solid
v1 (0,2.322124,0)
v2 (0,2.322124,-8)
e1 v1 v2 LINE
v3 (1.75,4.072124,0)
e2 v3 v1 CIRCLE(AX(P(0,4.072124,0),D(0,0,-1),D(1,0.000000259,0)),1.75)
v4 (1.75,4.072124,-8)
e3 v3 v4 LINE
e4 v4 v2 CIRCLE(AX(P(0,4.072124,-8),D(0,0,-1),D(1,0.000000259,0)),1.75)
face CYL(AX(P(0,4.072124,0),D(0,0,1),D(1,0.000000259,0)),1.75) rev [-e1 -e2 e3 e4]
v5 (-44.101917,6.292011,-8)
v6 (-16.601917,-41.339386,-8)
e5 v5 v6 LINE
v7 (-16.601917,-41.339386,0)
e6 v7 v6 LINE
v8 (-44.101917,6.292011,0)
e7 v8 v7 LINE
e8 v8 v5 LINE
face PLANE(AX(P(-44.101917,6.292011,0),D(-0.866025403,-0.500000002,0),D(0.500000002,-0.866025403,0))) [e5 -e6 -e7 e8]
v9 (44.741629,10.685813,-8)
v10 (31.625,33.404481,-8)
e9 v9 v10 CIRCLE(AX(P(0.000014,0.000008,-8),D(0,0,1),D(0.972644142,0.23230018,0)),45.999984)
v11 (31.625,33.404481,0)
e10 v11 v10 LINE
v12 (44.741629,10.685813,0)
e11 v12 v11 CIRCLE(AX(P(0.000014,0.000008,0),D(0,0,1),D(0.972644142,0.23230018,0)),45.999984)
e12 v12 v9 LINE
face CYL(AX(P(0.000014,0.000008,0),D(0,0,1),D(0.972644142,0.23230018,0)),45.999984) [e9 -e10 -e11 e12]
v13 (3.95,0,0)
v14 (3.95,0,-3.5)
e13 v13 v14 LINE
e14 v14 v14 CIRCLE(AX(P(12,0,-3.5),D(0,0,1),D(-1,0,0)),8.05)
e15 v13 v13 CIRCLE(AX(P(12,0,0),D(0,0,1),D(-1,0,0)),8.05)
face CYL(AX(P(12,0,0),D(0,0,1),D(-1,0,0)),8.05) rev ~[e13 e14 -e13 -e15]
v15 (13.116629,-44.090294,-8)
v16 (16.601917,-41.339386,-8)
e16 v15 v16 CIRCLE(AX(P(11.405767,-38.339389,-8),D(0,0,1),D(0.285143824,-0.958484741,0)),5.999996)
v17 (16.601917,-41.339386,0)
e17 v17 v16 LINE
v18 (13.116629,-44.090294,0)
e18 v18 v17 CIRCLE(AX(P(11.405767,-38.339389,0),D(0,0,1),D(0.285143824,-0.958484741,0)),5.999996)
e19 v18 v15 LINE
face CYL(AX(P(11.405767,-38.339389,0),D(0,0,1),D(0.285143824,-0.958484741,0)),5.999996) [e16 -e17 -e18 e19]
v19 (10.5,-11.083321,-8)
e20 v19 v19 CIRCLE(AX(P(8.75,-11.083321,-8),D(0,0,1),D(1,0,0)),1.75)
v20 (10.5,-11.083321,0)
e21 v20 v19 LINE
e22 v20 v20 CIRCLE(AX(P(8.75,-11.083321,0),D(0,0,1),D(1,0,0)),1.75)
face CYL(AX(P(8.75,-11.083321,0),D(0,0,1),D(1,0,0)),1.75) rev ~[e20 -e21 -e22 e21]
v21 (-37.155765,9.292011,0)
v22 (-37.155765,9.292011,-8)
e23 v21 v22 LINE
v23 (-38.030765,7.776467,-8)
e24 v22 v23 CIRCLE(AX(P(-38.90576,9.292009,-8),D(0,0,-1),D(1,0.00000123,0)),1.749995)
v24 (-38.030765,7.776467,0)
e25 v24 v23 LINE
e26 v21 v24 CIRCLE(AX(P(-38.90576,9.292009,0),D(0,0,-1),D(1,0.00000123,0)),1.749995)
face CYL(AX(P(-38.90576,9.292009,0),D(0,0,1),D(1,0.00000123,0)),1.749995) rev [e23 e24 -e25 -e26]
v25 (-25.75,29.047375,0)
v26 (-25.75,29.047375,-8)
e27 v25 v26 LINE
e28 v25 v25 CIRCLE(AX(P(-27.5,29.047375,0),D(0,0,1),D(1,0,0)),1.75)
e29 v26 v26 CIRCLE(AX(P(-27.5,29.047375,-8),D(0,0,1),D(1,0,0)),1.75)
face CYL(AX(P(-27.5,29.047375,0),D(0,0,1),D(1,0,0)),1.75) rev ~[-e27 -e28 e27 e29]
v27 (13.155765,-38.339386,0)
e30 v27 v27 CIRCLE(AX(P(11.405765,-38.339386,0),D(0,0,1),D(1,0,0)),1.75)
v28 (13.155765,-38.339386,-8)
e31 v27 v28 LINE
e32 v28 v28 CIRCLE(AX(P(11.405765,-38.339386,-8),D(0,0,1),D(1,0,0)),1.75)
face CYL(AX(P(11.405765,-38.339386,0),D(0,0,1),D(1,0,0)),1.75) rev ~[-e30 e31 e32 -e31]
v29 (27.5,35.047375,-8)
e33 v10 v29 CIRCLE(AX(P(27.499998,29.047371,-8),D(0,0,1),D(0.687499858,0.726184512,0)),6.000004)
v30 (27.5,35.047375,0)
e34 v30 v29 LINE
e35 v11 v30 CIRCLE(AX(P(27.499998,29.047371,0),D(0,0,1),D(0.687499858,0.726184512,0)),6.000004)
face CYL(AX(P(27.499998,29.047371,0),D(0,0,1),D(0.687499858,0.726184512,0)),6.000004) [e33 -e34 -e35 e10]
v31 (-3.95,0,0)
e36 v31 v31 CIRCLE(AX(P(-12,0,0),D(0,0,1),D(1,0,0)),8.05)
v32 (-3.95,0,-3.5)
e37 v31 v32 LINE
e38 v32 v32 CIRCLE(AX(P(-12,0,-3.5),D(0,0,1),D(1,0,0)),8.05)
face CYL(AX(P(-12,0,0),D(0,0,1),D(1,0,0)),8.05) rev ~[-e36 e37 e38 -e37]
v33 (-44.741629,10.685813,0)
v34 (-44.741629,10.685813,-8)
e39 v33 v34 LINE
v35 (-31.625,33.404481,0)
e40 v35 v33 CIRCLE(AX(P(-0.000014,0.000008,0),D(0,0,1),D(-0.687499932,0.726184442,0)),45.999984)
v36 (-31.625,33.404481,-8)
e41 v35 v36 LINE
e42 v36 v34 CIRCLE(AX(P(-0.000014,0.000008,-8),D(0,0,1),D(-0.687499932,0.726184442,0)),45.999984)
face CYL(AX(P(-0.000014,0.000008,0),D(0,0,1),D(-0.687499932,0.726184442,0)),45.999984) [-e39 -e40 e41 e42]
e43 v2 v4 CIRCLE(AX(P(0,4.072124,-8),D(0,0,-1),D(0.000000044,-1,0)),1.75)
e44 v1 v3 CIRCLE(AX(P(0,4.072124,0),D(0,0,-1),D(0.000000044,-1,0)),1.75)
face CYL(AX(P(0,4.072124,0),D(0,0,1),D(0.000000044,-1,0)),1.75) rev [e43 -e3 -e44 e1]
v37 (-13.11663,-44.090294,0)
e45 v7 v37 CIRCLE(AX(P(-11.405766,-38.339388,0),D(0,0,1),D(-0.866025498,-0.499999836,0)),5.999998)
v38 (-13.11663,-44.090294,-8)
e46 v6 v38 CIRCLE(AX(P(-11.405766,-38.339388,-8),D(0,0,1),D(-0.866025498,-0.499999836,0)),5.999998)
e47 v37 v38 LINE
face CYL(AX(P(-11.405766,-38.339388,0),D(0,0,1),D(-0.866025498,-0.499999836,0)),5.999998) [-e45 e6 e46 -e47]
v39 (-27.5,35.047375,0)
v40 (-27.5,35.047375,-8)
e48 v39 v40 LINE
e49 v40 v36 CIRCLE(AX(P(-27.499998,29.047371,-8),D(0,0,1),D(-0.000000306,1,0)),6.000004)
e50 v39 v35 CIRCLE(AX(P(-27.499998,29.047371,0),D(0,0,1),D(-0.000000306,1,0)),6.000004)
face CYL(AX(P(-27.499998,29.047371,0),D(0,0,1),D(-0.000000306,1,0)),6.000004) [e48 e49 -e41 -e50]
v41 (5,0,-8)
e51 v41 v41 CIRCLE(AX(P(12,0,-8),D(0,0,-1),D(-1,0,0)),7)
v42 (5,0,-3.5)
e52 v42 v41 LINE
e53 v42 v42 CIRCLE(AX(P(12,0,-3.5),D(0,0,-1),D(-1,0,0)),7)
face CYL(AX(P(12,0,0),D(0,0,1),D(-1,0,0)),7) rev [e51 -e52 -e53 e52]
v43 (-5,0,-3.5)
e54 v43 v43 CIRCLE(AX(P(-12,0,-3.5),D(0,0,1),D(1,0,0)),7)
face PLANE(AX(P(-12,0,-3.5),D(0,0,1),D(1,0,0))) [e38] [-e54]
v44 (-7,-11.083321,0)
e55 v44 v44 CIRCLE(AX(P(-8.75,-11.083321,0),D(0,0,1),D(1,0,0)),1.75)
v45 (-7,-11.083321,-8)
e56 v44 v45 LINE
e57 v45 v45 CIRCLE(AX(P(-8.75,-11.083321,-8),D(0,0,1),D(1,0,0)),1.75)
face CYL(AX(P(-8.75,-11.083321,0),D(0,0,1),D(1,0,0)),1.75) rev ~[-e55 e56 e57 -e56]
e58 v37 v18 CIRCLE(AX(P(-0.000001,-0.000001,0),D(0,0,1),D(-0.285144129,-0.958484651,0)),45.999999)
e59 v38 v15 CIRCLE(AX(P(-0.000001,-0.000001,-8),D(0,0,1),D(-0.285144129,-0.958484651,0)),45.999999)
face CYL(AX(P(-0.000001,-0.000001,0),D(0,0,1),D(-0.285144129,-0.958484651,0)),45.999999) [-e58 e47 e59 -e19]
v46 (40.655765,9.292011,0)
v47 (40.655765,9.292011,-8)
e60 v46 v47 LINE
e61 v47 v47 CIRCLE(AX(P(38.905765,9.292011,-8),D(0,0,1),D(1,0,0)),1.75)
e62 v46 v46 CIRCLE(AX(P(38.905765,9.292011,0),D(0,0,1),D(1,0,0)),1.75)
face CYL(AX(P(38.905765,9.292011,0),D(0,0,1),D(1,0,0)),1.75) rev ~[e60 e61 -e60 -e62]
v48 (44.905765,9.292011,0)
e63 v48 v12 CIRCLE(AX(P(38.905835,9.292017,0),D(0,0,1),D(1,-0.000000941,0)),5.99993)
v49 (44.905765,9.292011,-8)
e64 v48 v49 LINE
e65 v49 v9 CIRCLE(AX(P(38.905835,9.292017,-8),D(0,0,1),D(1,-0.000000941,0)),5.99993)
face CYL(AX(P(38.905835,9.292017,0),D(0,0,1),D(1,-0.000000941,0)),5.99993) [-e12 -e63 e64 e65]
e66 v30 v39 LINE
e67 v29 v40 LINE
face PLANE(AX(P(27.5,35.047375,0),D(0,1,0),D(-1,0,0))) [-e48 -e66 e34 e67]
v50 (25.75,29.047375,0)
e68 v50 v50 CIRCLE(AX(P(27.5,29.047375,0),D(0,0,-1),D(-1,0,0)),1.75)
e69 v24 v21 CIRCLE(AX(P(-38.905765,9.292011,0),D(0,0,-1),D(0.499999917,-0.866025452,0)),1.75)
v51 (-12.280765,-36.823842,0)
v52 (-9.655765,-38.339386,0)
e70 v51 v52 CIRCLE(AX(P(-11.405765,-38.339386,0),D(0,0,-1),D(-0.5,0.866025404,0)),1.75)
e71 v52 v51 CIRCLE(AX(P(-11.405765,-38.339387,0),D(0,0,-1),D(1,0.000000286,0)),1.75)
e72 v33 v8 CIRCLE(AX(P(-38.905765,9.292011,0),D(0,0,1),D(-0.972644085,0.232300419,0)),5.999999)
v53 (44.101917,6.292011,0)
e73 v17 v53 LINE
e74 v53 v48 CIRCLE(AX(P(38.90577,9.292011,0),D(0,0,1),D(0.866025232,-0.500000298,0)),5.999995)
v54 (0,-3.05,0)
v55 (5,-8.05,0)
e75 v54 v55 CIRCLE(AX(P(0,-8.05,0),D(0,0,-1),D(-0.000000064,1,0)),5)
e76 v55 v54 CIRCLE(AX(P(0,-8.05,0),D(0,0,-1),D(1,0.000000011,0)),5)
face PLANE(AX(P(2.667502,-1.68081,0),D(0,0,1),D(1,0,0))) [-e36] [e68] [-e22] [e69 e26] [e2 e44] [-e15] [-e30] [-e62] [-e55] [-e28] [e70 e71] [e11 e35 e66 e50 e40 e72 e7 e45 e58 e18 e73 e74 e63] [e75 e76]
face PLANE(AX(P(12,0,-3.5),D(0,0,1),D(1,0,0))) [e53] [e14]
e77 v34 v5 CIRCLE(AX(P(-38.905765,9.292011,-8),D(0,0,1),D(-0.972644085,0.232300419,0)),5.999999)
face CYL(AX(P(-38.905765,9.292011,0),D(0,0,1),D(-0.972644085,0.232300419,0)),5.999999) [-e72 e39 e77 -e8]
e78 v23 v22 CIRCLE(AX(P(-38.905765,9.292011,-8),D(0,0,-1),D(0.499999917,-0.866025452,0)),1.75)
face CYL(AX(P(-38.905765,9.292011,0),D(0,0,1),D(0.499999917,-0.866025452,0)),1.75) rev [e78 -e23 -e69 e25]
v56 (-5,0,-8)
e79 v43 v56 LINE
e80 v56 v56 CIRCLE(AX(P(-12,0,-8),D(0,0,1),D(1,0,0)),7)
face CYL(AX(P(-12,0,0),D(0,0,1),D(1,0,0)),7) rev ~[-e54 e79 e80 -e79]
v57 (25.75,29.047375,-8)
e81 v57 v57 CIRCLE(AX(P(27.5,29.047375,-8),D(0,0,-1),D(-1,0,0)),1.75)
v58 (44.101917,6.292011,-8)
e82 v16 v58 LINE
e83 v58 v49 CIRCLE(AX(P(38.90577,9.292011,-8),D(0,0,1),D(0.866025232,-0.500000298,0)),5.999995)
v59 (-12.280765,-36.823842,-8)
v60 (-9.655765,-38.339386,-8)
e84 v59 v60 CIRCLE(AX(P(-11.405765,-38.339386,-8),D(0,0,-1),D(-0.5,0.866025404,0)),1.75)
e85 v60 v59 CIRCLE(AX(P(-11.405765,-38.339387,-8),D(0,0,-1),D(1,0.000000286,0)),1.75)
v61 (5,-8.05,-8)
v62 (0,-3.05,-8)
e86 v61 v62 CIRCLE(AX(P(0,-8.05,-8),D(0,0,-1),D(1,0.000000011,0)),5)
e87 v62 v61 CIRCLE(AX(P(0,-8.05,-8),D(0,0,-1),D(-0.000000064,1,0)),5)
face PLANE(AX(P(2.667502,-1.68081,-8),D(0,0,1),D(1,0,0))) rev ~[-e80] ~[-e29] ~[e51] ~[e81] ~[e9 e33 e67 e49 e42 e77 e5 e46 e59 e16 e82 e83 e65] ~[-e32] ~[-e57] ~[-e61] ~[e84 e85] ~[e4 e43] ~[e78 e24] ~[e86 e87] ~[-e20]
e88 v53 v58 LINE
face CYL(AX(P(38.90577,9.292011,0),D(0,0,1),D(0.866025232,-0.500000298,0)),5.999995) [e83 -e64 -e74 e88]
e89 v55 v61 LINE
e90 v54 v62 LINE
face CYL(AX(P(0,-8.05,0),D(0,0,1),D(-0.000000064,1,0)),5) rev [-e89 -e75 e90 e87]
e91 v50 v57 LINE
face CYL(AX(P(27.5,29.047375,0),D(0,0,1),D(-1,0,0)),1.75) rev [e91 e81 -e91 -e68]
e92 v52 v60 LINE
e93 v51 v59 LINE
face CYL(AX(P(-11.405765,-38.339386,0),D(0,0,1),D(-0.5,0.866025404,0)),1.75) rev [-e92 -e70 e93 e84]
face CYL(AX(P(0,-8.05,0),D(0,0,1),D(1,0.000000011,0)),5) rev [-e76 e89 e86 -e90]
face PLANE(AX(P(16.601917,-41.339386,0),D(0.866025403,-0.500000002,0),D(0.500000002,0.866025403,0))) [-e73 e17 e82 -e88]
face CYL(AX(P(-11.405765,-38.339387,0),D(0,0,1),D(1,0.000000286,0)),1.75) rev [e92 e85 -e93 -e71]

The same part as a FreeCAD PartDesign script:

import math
import FreeCAD as App
import Part
import Sketcher

doc = App.newDocument("Part")
body = doc.addObject("PartDesign::Body", "Body")

sketch1 = body.newObject("Sketcher::SketchObject", "Sketch")
sketch1.AttachmentSupport = (doc.getObject("XY_Plane"), [""])
sketch1.MapMode = "FlatFace"
sketch1.addGeometry(Part.LineSegment(App.Vector(-44.101917, 6.292011, 0), App.Vector(-16.601917, -41.339386, 0)), False)
sketch1.addGeometry(Part.ArcOfCircle(Part.Circle(App.Vector(-11.405766, -38.339388, 0), App.Vector(0, 0, 1), 5.999998), math.radians(-150.000011), math.radians(-106.567466)), False)
sketch1.addGeometry(Part.ArcOfCircle(Part.Circle(App.Vector(0, -0.000001, 0), App.Vector(0, 0, 1), 45.999999), math.radians(-106.567464), math.radians(-73.432536)), False)
sketch1.addGeometry(Part.ArcOfCircle(Part.Circle(App.Vector(11.405767, -38.339389, 0), App.Vector(0, 0, 1), 5.999996), math.radians(-73.432554), math.radians(-29.999985)), False)
sketch1.addGeometry(Part.LineSegment(App.Vector(16.601917, -41.339386, 0), App.Vector(44.101917, 6.292011, 0)), False)
sketch1.addGeometry(Part.ArcOfCircle(Part.Circle(App.Vector(38.90577, 9.292011, 0), App.Vector(0, 0, 1), 5.999995), math.radians(-30.00002), math.radians(0.000005)), False)
sketch1.addGeometry(Part.ArcOfCircle(Part.Circle(App.Vector(38.905835, 9.292017, 0), App.Vector(0, 0, 1), 5.99993), math.radians(-0.000054), math.radians(13.432645)), False)
sketch1.addGeometry(Part.ArcOfCircle(Part.Circle(App.Vector(0.000014, 0.000008, 0), App.Vector(0, 0, 1), 45.999984), math.radians(13.432531), math.radians(46.567469)), False)
sketch1.addGeometry(Part.ArcOfCircle(Part.Circle(App.Vector(27.499998, 29.047371, 0), App.Vector(0, 0, 1), 6.000004), math.radians(46.567475), math.radians(89.999982)), False)
sketch1.addGeometry(Part.LineSegment(App.Vector(27.5, 35.047375, 0), App.Vector(-27.5, 35.047375, 0)), False)
sketch1.addGeometry(Part.ArcOfCircle(Part.Circle(App.Vector(-27.499998, 29.047371, 0), App.Vector(0, 0, 1), 6.000004), math.radians(90.000018), math.radians(133.432525)), False)
sketch1.addGeometry(Part.ArcOfCircle(Part.Circle(App.Vector(-0.000014, 0.000008, 0), App.Vector(0, 0, 1), 45.999984), math.radians(133.432531), math.radians(166.567469)), False)
sketch1.addGeometry(Part.ArcOfCircle(Part.Circle(App.Vector(-38.905765, 9.292011, 0), App.Vector(0, 0, 1), 5.999999), math.radians(166.567455), math.radians(210)), False)
sketch1.addGeometry(Part.ArcOfCircle(Part.Circle(App.Vector(-11.405765, -38.339386, 0), App.Vector(0, 0, 1), 1.75), math.radians(0.000015), math.radians(120)), False)
sketch1.addGeometry(Part.ArcOfCircle(Part.Circle(App.Vector(-11.405765, -38.339387, 0), App.Vector(0, 0, 1), 1.75), math.radians(119.999999), math.radians(360.000016)), False)
sketch1.addGeometry(Part.Circle(App.Vector(-8.75, -11.083321, 0), App.Vector(0, 0, 1), 1.75), False)
sketch1.addGeometry(Part.ArcOfCircle(Part.Circle(App.Vector(0, -8.05, 0), App.Vector(0, 0, 1), 5), math.radians(-0.000004), math.radians(90.000004)), False)
sketch1.addGeometry(Part.ArcOfCircle(Part.Circle(App.Vector(0, -8.05, 0), App.Vector(0, 0, 1), 5), math.radians(89.999999), math.radians(360.000001)), False)
sketch1.addGeometry(Part.Circle(App.Vector(11.405765, -38.339386, 0), App.Vector(0, 0, 1), 1.75), False)
sketch1.addGeometry(Part.Circle(App.Vector(8.75, -11.083321, 0), App.Vector(0, 0, 1), 1.75), False)
sketch1.addGeometry(Part.ArcOfCircle(Part.Circle(App.Vector(-38.90576, 9.292009, 0), App.Vector(0, 0, 1), 1.749995), math.radians(-60.000085), math.radians(0.00007)), False)
sketch1.addGeometry(Part.ArcOfCircle(Part.Circle(App.Vector(-38.905765, 9.292011, 0), App.Vector(0, 0, 1), 1.75), math.radians(-0.000009), math.radians(299.999995)), False)
sketch1.addGeometry(Part.Circle(App.Vector(-12, 0, 0), App.Vector(0, 0, 1), 7), False)
sketch1.addGeometry(Part.ArcOfCircle(Part.Circle(App.Vector(0, 4.072124, 0), App.Vector(0, 0, 1), 1.75), math.radians(-0.000003), math.radians(270.000003)), False)
sketch1.addGeometry(Part.ArcOfCircle(Part.Circle(App.Vector(0, 4.072124, 0), App.Vector(0, 0, 1), 1.75), math.radians(-90.000015), math.radians(0.000015)), False)
sketch1.addGeometry(Part.Circle(App.Vector(-27.5, 29.047375, 0), App.Vector(0, 0, 1), 1.75), False)
sketch1.addGeometry(Part.Circle(App.Vector(12, 0, 0), App.Vector(0, 0, 1), 7), False)
sketch1.addGeometry(Part.Circle(App.Vector(38.905765, 9.292011, 0), App.Vector(0, 0, 1), 1.75), False)
sketch1.addGeometry(Part.Circle(App.Vector(27.5, 29.047375, 0), App.Vector(0, 0, 1), 1.75), False)
sketch1.addConstraint(Sketcher.Constraint("Coincident", 0, 2, 1, 1))
sketch1.addConstraint(Sketcher.Constraint("Coincident", 1, 2, 2, 1))
sketch1.addConstraint(Sketcher.Constraint("Coincident", 2, 2, 3, 1))
sketch1.addConstraint(Sketcher.Constraint("Coincident", 3, 2, 4, 1))
sketch1.addConstraint(Sketcher.Constraint("Coincident", 4, 2, 5, 1))
sketch1.addConstraint(Sketcher.Constraint("Coincident", 5, 2, 6, 1))
sketch1.addConstraint(Sketcher.Constraint("Coincident", 6, 2, 7, 1))
sketch1.addConstraint(Sketcher.Constraint("Coincident", 7, 2, 8, 1))
sketch1.addConstraint(Sketcher.Constraint("Coincident", 8, 2, 9, 1))
sketch1.addConstraint(Sketcher.Constraint("Coincident", 9, 2, 10, 1))
sketch1.addConstraint(Sketcher.Constraint("Coincident", 10, 2, 11, 1))
sketch1.addConstraint(Sketcher.Constraint("Coincident", 11, 2, 12, 1))
sketch1.addConstraint(Sketcher.Constraint("Coincident", 12, 2, 0, 1))
sketch1.addConstraint(Sketcher.Constraint("Coincident", 13, 1, 14, 2))
sketch1.addConstraint(Sketcher.Constraint("Coincident", 14, 1, 13, 2))
sketch1.addConstraint(Sketcher.Constraint("Coincident", 16, 1, 17, 2))
sketch1.addConstraint(Sketcher.Constraint("Coincident", 17, 1, 16, 2))
sketch1.addConstraint(Sketcher.Constraint("Coincident", 20, 1, 21, 2))
sketch1.addConstraint(Sketcher.Constraint("Coincident", 21, 1, 20, 2))
sketch1.addConstraint(Sketcher.Constraint("Coincident", 23, 1, 24, 2))
sketch1.addConstraint(Sketcher.Constraint("Coincident", 24, 1, 23, 2))
sketch1.addConstraint(Sketcher.Constraint("Horizontal", 9))
sketch1.addConstraint(Sketcher.Constraint("Coincident", 2, 3, -1, 1))
sketch1.addConstraint(Sketcher.Constraint("Coincident", 13, 3, 1, 3))
sketch1.addConstraint(Sketcher.Constraint("Coincident", 18, 3, 3, 3))
sketch1.addConstraint(Sketcher.Constraint("Coincident", 20, 3, 12, 3))
sketch1.addConstraint(Sketcher.Constraint("Coincident", 25, 3, 10, 3))
sketch1.addConstraint(Sketcher.Constraint("Coincident", 27, 3, 5, 3))
sketch1.addConstraint(Sketcher.Constraint("Coincident", 28, 3, 8, 3))
sketch1.addConstraint(Sketcher.Constraint("PointOnObject", 16, 3, -2))
sketch1.addConstraint(Sketcher.Constraint("PointOnObject", 17, 3, -2))
sketch1.addConstraint(Sketcher.Constraint("PointOnObject", 22, 3, -1))
sketch1.addConstraint(Sketcher.Constraint("PointOnObject", 23, 3, -2))
sketch1.addConstraint(Sketcher.Constraint("PointOnObject", 24, 3, -2))
sketch1.addConstraint(Sketcher.Constraint("PointOnObject", 26, 3, -1))
sketch1.addConstraint(Sketcher.Constraint("PointOnObject", 17, 1, -2))
sketch1.addConstraint(Sketcher.Constraint("PointOnObject", 24, 1, -2))
sketch1.addConstraint(Sketcher.Constraint("Diameter", 22, 14.0))
sketch1.addConstraint(Sketcher.Constraint("Diameter", 26, 14.0))
sketch1.addConstraint(Sketcher.Constraint("Radius", 1, 5.999998))
sketch1.addConstraint(Sketcher.Constraint("Radius", 2, 45.999999))
sketch1.addConstraint(Sketcher.Constraint("Radius", 12, 5.999999))
sketch1.addConstraint(Sketcher.Constraint("Radius", 16, 5.0))
sketch1.addConstraint(Sketcher.Constraint("Diameter", 15, 3.5))
sketch1.addConstraint(Sketcher.Constraint("Diameter", 18, 3.5))
sketch1.addConstraint(Sketcher.Constraint("Diameter", 19, 3.5))
sketch1.addConstraint(Sketcher.Constraint("Diameter", 25, 3.5))
sketch1.addConstraint(Sketcher.Constraint("Diameter", 27, 3.5))
sketch1.addConstraint(Sketcher.Constraint("Diameter", 28, 3.5))
sketch1.addConstraint(Sketcher.Constraint("DistanceX", 9, 2, 9, 1, 55.0))
sketch1.addConstraint(Sketcher.Constraint("Radius", 13, 1.75))
sketch1.addConstraint(Sketcher.Constraint("Radius", 14, 1.75))
sketch1.addConstraint(Sketcher.Constraint("Radius", 21, 1.75))
sketch1.addConstraint(Sketcher.Constraint("Radius", 23, 1.75))
sketch1.addConstraint(Sketcher.Constraint("Distance", 0, 55.0))
sketch1.addConstraint(Sketcher.Constraint("Distance", 4, 55.0))
sketch1.addConstraint(Sketcher.Constraint("DistanceX", 22, 3, -1, 1, 12.0))
sketch1.addConstraint(Sketcher.Constraint("DistanceX", -1, 1, 26, 3, 12.0))
sketch1.addConstraint(Sketcher.Constraint("DistanceY", 0, 2, 1, 3, 2.999998))
sketch1.addConstraint(Sketcher.Constraint("DistanceY", 0, 2, 18, 3, 3.0))
sketch1.addConstraint(Sketcher.Constraint("DistanceY", 3, 2, 18, 3, 3.0))
sketch1.addConstraint(Sketcher.Constraint("DistanceY", 4, 2, 5, 3, 3.0))
sketch1.addConstraint(Sketcher.Constraint("DistanceY", 4, 2, 5, 2, 3.0))
sketch1.addConstraint(Sketcher.Constraint("DistanceX", 27, 3, 5, 2, 6.0))
sketch1.addConstraint(Sketcher.Constraint("DistanceY", 28, 3, 8, 2, 6.0))
sketch1.addConstraint(Sketcher.Constraint("DistanceY", 25, 3, 9, 2, 6.0))
sketch1.addConstraint(Sketcher.Constraint("DistanceY", 12, 2, 12, 3, 3.0))
sketch1.addConstraint(Sketcher.Constraint("DistanceY", 12, 2, 21, 3, 3.0))
sketch1.addConstraint(Sketcher.Constraint("DistanceY", 0, 2, 13, 1, 3.0))
sketch1.addConstraint(Sketcher.Constraint("DistanceY", 12, 2, 21, 1, 3.0))
sketch1.addConstraint(Sketcher.Constraint("DistanceX", -1, 1, 8, 3, 27.499998))
sketch1.addConstraint(Sketcher.Constraint("DistanceX", 10, 3, -1, 1, 27.499998))
sketch1.addConstraint(Sketcher.Constraint("DistanceX", -1, 1, 8, 2, 27.5))
sketch1.addConstraint(Sketcher.Constraint("DistanceX", 12, 3, 1, 3, 27.5))
sketch1.addConstraint(Sketcher.Constraint("DistanceX", 15, 3, -1, 1, 8.75))
sketch1.addConstraint(Sketcher.Constraint("DistanceY", 16, 3, -1, 1, 8.05))
sketch1.addConstraint(Sketcher.Constraint("DistanceX", -1, 1, 19, 3, 8.75))
sketch1.addConstraint(Sketcher.Constraint("DistanceY", 16, 1, -1, 1, 8.05))
sketch1.addConstraint(Sketcher.Constraint("Radius", 6, 5.99993))
sketch1.addConstraint(Sketcher.Constraint("DistanceX", -1, 1, 7, 2, 31.625))
sketch1.addConstraint(Sketcher.Constraint("DistanceX", 10, 2, -1, 1, 31.625))
sketch1.addConstraint(Sketcher.Constraint("Radius", 3, 5.999996))
sketch1.addConstraint(Sketcher.Constraint("Radius", 7, 45.999984))
sketch1.addConstraint(Sketcher.Constraint("Radius", 11, 45.999984))
sketch1.addConstraint(Sketcher.Constraint("DistanceY", 11, 3, 20, 3, 9.292))
sketch1.addConstraint(Sketcher.Constraint("DistanceX", 14, 1, 13, 3, 0.875))
sketch1.addConstraint(Sketcher.Constraint("DistanceX", 12, 3, 20, 1, 0.875))
sketch1.addConstraint(Sketcher.Constraint("DistanceY", 3, 3, 5, 3, 47.6314))
sketch1.addConstraint(Sketcher.Constraint("DistanceX", 1, 3, 6, 3, 50.311601))
sketch1.addConstraint(Sketcher.Constraint("DistanceY", 21, 3, 11, 2, 1.393802))
sketch1.addConstraint(Sketcher.Constraint("DistanceY", 15, 3, -1, 1, 11.083321))
sketch1.addConstraint(Sketcher.Constraint("DistanceY", 19, 3, -1, 1, 11.083321))
sketch1.addConstraint(Sketcher.Constraint("DistanceX", 1, 2, -1, 1, 13.11663))
sketch1.addConstraint(Sketcher.Constraint("DistanceX", -1, 1, 2, 2, 13.116629))
sketch1.addConstraint(Sketcher.Constraint("DistanceX", -1, 1, 6, 2, 44.741629))
sketch1.addConstraint(Sketcher.Constraint("DistanceY", 2, 3, 6, 3, 9.292018))
sketch1.addConstraint(Sketcher.Constraint("DistanceY", -1, 1, 23, 3, 4.072124))
sketch1.addConstraint(Sketcher.Constraint("DistanceY", -1, 1, 23, 1, 4.072124))
pad1 = body.newObject("PartDesign::Pad", "Pad")
pad1.Profile = sketch1
pad1.Length = 8
pad1.Reversed = True

sketch2 = body.newObject("Sketcher::SketchObject", "Sketch001")
sketch2.AttachmentSupport = (doc.getObject("XY_Plane"), [""])
sketch2.MapMode = "FlatFace"
sketch2.addGeometry(Part.Circle(App.Vector(12, 0, 0), App.Vector(0, 0, 1), 8.05), False)
sketch2.addGeometry(Part.Circle(App.Vector(12, 0, 0), App.Vector(0, 0, 1), 7), False)
sketch2.addGeometry(Part.Circle(App.Vector(-12, 0, 0), App.Vector(0, 0, 1), 8.05), False)
sketch2.addGeometry(Part.Circle(App.Vector(-12, 0, 0), App.Vector(0, 0, 1), 7), False)
sketch2.addConstraint(Sketcher.Constraint("Coincident", 1, 3, 0, 3))
sketch2.addConstraint(Sketcher.Constraint("Coincident", 3, 3, 2, 3))
sketch2.addConstraint(Sketcher.Constraint("Equal", 0, 2))
sketch2.addConstraint(Sketcher.Constraint("Equal", 1, 3))
sketch2.addConstraint(Sketcher.Constraint("Symmetric", 0, 3, 2, 3, -1, 1))
sketch2.addConstraint(Sketcher.Constraint("PointOnObject", 0, 3, -1))
sketch2.addConstraint(Sketcher.Constraint("Diameter", 1, 14.0))
sketch2.addConstraint(Sketcher.Constraint("Diameter", 0, 16.1))
sketch2.addConstraint(Sketcher.Constraint("DistanceX", -1, 1, 0, 3, 12.0))
pocket1 = body.newObject("PartDesign::Pocket", "Pocket")
pocket1.Profile = sketch2
pocket1.Length = 3.5

doc.recompute()
